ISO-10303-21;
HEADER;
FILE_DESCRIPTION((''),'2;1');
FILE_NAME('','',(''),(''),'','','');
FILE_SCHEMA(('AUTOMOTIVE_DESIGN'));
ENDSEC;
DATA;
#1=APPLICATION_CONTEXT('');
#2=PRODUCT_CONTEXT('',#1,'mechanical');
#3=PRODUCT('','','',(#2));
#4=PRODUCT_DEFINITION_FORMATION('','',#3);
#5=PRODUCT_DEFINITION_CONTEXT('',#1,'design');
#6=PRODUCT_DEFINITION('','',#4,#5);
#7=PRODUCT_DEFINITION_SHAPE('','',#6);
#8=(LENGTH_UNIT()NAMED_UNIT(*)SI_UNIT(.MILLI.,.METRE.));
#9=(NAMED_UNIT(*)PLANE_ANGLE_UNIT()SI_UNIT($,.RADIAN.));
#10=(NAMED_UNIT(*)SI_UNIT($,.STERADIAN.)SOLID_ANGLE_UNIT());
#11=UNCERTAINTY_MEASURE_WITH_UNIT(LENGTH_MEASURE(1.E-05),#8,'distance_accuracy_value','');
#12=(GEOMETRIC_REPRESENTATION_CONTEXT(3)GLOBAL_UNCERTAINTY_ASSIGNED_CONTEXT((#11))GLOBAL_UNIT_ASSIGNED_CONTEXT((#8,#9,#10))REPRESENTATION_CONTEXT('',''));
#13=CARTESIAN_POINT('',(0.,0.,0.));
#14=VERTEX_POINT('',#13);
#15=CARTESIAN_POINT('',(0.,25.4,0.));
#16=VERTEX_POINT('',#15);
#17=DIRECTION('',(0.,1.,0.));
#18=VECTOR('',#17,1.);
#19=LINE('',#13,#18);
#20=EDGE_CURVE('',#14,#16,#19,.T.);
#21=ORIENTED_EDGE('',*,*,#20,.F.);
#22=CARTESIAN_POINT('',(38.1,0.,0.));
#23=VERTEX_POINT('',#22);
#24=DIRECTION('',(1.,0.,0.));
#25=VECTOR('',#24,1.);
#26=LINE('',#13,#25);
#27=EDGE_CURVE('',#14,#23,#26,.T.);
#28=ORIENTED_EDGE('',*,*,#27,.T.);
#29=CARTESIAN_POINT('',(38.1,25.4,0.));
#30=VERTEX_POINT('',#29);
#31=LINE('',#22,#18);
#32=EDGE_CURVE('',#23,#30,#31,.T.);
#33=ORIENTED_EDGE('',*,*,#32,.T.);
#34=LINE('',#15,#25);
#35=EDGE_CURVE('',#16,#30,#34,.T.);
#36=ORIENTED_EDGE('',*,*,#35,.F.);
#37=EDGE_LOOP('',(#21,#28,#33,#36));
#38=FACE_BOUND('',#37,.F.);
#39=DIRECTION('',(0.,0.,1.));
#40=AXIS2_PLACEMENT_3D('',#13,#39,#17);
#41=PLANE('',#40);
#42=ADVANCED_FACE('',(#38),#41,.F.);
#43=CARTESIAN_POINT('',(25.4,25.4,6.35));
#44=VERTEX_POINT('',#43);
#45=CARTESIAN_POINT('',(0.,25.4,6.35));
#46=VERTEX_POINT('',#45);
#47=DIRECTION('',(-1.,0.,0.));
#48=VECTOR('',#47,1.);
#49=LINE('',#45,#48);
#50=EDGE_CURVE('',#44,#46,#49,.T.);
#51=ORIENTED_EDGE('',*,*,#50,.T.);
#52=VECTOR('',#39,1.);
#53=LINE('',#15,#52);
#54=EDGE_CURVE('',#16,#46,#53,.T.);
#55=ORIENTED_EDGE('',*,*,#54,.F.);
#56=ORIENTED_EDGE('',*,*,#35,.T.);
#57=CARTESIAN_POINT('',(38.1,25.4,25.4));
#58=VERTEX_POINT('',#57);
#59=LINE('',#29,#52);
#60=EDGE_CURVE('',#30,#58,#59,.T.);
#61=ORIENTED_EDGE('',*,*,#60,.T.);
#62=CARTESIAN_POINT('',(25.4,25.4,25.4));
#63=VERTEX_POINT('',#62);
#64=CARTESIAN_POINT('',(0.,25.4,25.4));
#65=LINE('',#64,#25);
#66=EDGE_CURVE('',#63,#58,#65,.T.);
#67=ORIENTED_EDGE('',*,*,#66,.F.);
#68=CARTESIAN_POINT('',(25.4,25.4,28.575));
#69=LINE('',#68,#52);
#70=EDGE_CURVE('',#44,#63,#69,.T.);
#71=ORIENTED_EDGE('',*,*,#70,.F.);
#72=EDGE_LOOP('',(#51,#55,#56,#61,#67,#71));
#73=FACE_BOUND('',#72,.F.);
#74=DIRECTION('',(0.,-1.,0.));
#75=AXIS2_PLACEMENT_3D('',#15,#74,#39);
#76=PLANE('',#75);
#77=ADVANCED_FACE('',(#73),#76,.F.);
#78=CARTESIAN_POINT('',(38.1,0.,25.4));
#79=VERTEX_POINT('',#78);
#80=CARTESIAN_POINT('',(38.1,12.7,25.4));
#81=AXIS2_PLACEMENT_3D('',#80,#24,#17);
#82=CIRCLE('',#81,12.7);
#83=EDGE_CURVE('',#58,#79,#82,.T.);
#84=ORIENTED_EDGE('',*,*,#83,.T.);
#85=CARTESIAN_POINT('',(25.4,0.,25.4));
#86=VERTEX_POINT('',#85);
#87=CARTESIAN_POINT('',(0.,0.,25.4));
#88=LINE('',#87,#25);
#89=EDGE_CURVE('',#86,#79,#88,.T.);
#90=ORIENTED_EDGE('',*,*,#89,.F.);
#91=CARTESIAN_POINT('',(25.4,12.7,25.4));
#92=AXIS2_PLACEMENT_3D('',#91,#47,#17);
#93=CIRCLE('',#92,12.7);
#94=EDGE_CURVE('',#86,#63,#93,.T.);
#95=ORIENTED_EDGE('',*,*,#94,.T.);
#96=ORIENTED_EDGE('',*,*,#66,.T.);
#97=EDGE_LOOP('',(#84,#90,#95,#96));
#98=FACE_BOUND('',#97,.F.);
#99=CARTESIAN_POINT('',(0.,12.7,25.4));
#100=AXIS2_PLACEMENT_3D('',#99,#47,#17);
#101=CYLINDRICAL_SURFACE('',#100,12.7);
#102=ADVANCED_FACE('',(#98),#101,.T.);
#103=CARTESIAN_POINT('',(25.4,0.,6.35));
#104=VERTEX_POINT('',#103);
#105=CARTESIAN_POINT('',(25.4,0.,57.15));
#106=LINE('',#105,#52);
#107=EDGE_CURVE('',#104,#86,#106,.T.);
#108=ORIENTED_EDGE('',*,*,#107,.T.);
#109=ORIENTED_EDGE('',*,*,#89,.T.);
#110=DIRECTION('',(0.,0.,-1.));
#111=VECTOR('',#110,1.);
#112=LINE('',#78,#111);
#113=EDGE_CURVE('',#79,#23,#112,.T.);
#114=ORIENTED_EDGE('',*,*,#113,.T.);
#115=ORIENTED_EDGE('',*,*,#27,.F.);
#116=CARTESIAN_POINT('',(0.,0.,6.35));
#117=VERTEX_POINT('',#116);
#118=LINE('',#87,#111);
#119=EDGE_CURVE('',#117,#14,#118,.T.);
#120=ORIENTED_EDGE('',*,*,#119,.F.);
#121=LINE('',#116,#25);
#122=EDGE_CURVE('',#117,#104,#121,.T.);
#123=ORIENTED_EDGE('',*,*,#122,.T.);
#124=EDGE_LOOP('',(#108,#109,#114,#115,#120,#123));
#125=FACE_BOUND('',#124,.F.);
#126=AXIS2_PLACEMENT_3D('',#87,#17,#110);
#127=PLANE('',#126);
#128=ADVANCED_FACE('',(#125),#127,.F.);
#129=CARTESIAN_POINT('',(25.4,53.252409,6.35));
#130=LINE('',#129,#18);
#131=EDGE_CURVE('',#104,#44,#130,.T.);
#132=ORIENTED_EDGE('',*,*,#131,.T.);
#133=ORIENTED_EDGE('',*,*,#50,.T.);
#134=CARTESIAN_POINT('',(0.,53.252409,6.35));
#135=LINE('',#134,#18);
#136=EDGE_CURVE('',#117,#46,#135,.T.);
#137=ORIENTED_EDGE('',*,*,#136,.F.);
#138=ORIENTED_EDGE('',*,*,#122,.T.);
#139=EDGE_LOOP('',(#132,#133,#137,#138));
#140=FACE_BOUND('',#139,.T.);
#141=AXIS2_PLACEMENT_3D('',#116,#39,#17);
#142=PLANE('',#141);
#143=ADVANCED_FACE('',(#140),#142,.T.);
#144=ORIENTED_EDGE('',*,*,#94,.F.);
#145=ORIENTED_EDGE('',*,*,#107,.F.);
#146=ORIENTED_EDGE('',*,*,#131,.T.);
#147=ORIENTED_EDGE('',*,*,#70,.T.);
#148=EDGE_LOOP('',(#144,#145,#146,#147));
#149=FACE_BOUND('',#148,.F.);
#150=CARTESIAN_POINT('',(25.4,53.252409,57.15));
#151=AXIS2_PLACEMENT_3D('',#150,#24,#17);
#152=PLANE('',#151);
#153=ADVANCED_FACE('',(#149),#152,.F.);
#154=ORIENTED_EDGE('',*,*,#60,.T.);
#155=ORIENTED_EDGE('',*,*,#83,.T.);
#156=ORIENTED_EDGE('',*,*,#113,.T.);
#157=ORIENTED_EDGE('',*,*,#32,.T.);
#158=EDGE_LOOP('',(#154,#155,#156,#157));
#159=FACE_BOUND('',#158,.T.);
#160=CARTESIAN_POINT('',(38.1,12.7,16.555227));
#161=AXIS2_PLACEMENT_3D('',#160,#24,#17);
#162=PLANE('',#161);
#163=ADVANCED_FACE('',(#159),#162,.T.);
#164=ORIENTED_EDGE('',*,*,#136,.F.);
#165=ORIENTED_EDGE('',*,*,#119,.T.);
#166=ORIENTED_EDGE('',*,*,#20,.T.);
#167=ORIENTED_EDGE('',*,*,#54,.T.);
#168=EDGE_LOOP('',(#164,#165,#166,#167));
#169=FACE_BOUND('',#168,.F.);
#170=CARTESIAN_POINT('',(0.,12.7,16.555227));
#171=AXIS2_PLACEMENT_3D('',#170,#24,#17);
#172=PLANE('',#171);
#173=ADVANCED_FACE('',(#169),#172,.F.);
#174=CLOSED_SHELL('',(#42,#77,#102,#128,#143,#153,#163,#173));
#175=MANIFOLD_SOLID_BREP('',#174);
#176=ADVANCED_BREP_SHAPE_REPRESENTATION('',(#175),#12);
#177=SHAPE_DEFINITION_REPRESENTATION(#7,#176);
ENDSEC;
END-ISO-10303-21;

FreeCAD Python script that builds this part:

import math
import FreeCAD as App
import Part
import Sketcher
Q = App.Units.Quantity

doc = App.newDocument("Part")
params = doc.addObject("Spreadsheet::Sheet", "Params")
for row, (alias, value) in enumerate([
    ("sketch1_radius", "0.5 in"),
    ("pad1_length", "1.5 in"),
    ("sketch2_height", "4 in"),
    ("pocket1_length", "1 in"),
], start=1):
    params.set(f"A{row}", alias)
    params.set(f"B{row}", "=" + value)
    params.setAlias(f"B{row}", alias)

body = doc.addObject("PartDesign::Body", "Body")

sketch1 = body.newObject("Sketcher::SketchObject", "Sketch")
sketch1.AttachmentSupport = (doc.getObject("YZ_Plane"), [""])
sketch1.MapMode = "FlatFace"
sketch1.addGeometry(Part.LineSegment(App.Vector(0, 25.4, 0), App.Vector(0, 0, 0)), False)
sketch1.addGeometry(Part.LineSegment(App.Vector(0, 0, 0), App.Vector(25.4, 0, 0)), False)
sketch1.addGeometry(Part.LineSegment(App.Vector(25.4, 0, 0), App.Vector(25.4, 25.4, 0)), False)
sketch1.addGeometry(Part.ArcOfCircle(Part.Circle(App.Vector(12.7, 25.4, 0), App.Vector(0, 0, 1), 12.7), math.radians(0), math.radians(180)), False)
sketch1.addConstraint(Sketcher.Constraint("Coincident", 0, 2, 1, 1))
sketch1.addConstraint(Sketcher.Constraint("Coincident", 1, 2, 2, 1))
sketch1.addConstraint(Sketcher.Constraint("Tangent", 2, 2, 3, 1))
sketch1.addConstraint(Sketcher.Constraint("Tangent", 3, 2, 0, 1))
sketch1.addConstraint(Sketcher.Constraint("Vertical", 0))
sketch1.addConstraint(Sketcher.Constraint("Horizontal", 1))
sketch1.addConstraint(Sketcher.Constraint("Vertical", 2))
sketch1.addConstraint(Sketcher.Constraint("Coincident", 0, 2, -1, 1))
sketch1.addConstraint(Sketcher.Constraint("Equal", 1, 0))
sketch1.addConstraint(Sketcher.Constraint("Radius", 3, Q("0.5 in")))
sketch1.setExpression("Constraints[9]", "Params.sketch1_radius")
pad1 = body.newObject("PartDesign::Pad", "Pad")
pad1.Profile = sketch1
pad1.setExpression("Length", "Params.pad1_length")

sketch2 = body.newObject("Sketcher::SketchObject", "Sketch001")
sketch2.AttachmentSupport = (doc.getObject("YZ_Plane"), [""])
sketch2.MapMode = "FlatFace"
sketch2.addGeometry(Part.LineSegment(App.Vector(0, 107.95, 0), App.Vector(0, 6.35, 0)), False)
sketch2.addGeometry(Part.LineSegment(App.Vector(0, 6.35, 0), App.Vector(106.504818, 6.35, 0)), False)
sketch2.addGeometry(Part.LineSegment(App.Vector(106.504818, 6.35, 0), App.Vector(106.504818, 107.95, 0)), False)
sketch2.addGeometry(Part.LineSegment(App.Vector(106.504818, 107.95, 0), App.Vector(0, 107.95, 0)), False)
sketch2.addConstraint(Sketcher.Constraint("Coincident", 0, 2, 1, 1))
sketch2.addConstraint(Sketcher.Constraint("Coincident", 1, 2, 2, 1))
sketch2.addConstraint(Sketcher.Constraint("Coincident", 2, 2, 3, 1))
sketch2.addConstraint(Sketcher.Constraint("Coincident", 3, 2, 0, 1))
sketch2.addConstraint(Sketcher.Constraint("Vertical", 0))
sketch2.addConstraint(Sketcher.Constraint("Horizontal", 1))
sketch2.addConstraint(Sketcher.Constraint("Vertical", 2))
sketch2.addConstraint(Sketcher.Constraint("Horizontal", 3))
sketch2.addConstraint(Sketcher.Constraint("PointOnObject", 0, 2, -2))
sketch2.addConstraint(Sketcher.Constraint("DistanceY", 0, 2, 0, 1, Q("4 in")))
sketch2.addConstraint(Sketcher.Constraint("DistanceY", -1, 1, 0, 2, Q("0.25 in")))
sketch2.addConstraint(Sketcher.Constraint("DistanceX", 1, 1, 1, 2, Q("106.504818 mm")))
sketch2.setExpression("Constraints[9]", "Params.sketch2_height")
pocket1 = body.newObject("PartDesign::Pocket", "Pocket")
pocket1.Profile = sketch2
pocket1.setExpression("Length", "Params.pocket1_length")
pocket1.Reversed = True

doc.recompute()
